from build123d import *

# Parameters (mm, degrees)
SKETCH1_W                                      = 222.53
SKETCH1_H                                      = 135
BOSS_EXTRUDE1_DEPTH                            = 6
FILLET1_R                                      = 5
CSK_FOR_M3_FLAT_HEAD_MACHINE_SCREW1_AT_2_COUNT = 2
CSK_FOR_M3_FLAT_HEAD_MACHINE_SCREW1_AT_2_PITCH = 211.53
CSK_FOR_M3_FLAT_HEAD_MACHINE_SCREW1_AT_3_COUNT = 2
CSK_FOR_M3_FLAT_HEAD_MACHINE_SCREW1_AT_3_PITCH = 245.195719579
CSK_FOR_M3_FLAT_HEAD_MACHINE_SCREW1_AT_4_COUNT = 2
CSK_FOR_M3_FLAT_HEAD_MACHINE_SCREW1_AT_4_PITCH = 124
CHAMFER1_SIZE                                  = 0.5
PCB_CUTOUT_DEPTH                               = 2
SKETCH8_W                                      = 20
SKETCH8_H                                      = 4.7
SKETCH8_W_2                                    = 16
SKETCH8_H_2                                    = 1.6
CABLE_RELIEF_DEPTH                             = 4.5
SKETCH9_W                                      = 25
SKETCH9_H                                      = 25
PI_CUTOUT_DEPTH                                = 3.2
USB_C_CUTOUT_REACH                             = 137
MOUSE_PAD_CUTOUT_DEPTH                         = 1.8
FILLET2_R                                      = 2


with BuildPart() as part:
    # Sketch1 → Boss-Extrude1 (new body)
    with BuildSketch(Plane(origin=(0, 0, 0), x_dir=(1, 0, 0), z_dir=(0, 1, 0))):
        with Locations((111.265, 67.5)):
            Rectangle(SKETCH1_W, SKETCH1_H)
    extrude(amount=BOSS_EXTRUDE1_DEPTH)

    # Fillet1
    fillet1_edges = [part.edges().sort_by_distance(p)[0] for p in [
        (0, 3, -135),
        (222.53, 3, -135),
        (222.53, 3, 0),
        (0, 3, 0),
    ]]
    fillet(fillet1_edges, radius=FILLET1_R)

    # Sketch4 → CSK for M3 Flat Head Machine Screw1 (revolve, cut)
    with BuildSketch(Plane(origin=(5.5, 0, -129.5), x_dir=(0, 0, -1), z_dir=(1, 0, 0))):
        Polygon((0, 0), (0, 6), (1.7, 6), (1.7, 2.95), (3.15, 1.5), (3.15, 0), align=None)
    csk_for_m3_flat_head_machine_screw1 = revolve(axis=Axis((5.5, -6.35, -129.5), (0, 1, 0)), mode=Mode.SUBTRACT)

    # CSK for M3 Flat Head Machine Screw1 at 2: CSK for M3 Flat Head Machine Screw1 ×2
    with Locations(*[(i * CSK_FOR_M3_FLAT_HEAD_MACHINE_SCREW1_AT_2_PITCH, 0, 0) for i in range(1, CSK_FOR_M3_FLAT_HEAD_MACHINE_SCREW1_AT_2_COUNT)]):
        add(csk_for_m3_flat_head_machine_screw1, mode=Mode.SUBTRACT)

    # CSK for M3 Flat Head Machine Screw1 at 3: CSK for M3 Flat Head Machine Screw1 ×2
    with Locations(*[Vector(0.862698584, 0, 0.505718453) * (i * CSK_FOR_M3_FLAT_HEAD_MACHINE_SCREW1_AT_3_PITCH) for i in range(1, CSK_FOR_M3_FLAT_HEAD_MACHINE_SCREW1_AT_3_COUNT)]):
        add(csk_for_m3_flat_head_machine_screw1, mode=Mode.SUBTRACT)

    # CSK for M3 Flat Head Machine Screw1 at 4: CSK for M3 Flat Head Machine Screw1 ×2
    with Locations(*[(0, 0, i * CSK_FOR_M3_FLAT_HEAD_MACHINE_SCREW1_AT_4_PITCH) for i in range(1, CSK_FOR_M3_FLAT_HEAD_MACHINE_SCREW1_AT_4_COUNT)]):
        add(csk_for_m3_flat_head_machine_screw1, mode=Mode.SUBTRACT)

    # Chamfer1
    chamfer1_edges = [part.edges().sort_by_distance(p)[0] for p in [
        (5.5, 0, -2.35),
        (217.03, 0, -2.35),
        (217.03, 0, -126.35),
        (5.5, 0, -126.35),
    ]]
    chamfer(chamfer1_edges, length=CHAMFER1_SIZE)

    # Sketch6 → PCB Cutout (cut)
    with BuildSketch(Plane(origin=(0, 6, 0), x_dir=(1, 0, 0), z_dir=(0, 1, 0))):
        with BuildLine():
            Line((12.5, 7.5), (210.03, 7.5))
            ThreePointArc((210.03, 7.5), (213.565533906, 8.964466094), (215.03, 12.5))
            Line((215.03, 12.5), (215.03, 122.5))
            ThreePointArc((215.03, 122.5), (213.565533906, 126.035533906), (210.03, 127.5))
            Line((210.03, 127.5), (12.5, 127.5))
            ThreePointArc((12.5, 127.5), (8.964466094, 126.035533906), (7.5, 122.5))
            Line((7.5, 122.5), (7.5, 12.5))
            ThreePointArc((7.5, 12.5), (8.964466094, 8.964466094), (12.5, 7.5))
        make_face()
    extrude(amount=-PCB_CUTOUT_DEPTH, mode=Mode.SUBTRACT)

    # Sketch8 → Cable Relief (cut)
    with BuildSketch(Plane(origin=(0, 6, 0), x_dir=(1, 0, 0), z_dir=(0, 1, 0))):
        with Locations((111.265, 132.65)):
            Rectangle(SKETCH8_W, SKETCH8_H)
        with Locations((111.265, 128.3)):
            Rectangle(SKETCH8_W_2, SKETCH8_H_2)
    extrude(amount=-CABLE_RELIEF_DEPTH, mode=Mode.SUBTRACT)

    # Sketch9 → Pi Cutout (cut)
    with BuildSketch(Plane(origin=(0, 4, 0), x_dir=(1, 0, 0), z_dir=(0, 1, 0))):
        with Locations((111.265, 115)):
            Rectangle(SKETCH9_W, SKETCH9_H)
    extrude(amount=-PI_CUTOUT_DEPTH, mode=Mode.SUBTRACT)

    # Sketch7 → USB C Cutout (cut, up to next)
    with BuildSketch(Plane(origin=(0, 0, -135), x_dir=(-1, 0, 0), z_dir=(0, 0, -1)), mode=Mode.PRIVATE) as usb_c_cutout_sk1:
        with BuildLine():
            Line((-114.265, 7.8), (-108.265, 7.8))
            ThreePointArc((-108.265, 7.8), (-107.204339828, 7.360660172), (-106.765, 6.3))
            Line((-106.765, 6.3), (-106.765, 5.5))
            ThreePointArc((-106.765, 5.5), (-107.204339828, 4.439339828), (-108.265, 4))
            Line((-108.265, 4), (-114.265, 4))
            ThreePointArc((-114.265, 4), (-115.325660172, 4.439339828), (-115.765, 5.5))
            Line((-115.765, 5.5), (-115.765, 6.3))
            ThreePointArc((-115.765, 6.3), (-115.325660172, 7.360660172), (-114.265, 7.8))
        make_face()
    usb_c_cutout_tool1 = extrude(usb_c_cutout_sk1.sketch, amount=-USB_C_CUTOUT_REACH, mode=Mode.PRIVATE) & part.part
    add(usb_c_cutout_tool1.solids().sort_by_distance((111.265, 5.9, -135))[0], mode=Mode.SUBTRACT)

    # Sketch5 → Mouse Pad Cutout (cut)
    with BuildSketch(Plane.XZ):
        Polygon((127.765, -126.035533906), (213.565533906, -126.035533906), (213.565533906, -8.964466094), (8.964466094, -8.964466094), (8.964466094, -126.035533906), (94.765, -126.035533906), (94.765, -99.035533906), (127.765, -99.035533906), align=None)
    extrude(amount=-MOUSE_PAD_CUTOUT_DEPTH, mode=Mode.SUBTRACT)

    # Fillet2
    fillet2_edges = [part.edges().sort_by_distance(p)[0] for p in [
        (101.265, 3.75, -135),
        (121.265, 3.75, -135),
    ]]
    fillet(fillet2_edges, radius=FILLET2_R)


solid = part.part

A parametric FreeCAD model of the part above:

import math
import FreeCAD as App
import Part
import Sketcher

V = App.Vector
Q = App.Units.Quantity


def edges_at(feature, points):
    """Names of the edges that pass closest to the given points."""
    edges = feature.Shape.Edges
    near = lambda p: min(range(len(edges)), key=lambda i: edges[i].distToShape(Part.Vertex(*p))[0])
    return sorted({f"Edge{near(p) + 1}" for p in points})

doc = App.newDocument("Part")
body = doc.addObject("PartDesign::Body", "Body")

sketch1 = doc.addObject("Sketcher::SketchObject", "Sketch")
body.addObject(sketch1)
sketch1.AttachmentSupport = (doc.XZ_Plane, [""])
sketch1.MapMode = "FlatFace"
sketch1.addGeometry([
    Part.LineSegment(V(0, -135, 0), V(0, 0, 0)),
    Part.LineSegment(V(0, 0, 0), V(222.53, 0, 0)),
    Part.LineSegment(V(222.53, 0, 0), V(222.53, -135, 0)),
    Part.LineSegment(V(222.53, -135, 0), V(0, -135, 0)),
], False)
sketch1.addConstraint([
    Sketcher.Constraint("Coincident", 0, 2, 1, 1),
    Sketcher.Constraint("Coincident", 1, 2, 2, 1),
    Sketcher.Constraint("Coincident", 2, 2, 3, 1),
    Sketcher.Constraint("Coincident", 3, 2, 0, 1),
    Sketcher.Constraint("Vertical", 0),
    Sketcher.Constraint("Horizontal", 1),
    Sketcher.Constraint("Vertical", 2),
    Sketcher.Constraint("Horizontal", 3),
    Sketcher.Constraint("Coincident", 0, 2, -1, 1),
    Sketcher.Constraint("DistanceY", 0, 1, 0, 2, 135.0),
    Sketcher.Constraint("DistanceX", 1, 1, 1, 2, 222.53),
])
pad1 = doc.addObject("PartDesign::Pad", "Pad")
body.addObject(pad1)
pad1.Profile = sketch1
pad1.Length = 6
pad1.Reversed = True
doc.recompute()

fillet = doc.addObject("PartDesign::Fillet", "Fillet")
body.addObject(fillet)
fillet.Base = (pad1, edges_at(pad1, [
    (0, 3, -135),
    (222.53, 3, -135),
    (222.53, 3, 0),
    (0, 3, 0),
]))
fillet.Radius = 5

sketch2 = doc.addObject("Sketcher::SketchObject", "Sketch001")
body.addObject(sketch2)
sketch2.AttachmentSupport = (doc.YZ_Plane, [""])
sketch2.MapMode = "FlatFace"
sketch2.AttachmentOffset = App.Placement(V(0, 0, 5.5), App.Rotation())
sketch2.addGeometry([
    Part.LineSegment(V(6, -129.5, 0), V(0, -129.5, 0)),
    Part.LineSegment(V(0, -129.5, 0), V(0, -132.65, 0)),
    Part.LineSegment(V(0, -132.65, 0), V(1.5, -132.65, 0)),
    Part.LineSegment(V(1.5, -132.65, 0), V(2.95, -131.2, 0)),
    Part.LineSegment(V(2.95, -131.2, 0), V(6, -131.2, 0)),
    Part.LineSegment(V(6, -131.2, 0), V(6, -129.5, 0)),
], False)
sketch2.addGeometry(Part.LineSegment(V(0, -129.5, 0), V(6, -129.5, 0)), True)
sketch2.addConstraint([
    Sketcher.Constraint("Coincident", 0, 2, 1, 1),
    Sketcher.Constraint("Coincident", 1, 2, 2, 1),
    Sketcher.Constraint("Coincident", 2, 2, 3, 1),
    Sketcher.Constraint("Coincident", 3, 2, 4, 1),
    Sketcher.Constraint("Coincident", 4, 2, 5, 1),
    Sketcher.Constraint("Coincident", 5, 2, 0, 1),
    Sketcher.Constraint("Horizontal", 0),
    Sketcher.Constraint("Vertical", 1),
    Sketcher.Constraint("Horizontal", 2),
    Sketcher.Constraint("Horizontal", 4),
    Sketcher.Constraint("Vertical", 5),
    Sketcher.Constraint("Horizontal", 6),
    Sketcher.Constraint("Coincident", 6, 1, 0, 2),
    Sketcher.Constraint("PointOnObject", 0, 2, -2),
    Sketcher.Constraint("Vertical", 4, 2, 6, 2),
    Sketcher.Constraint("DistanceX", 0, 2, 0, 1, 6.0),
    Sketcher.Constraint("Angle", 3, Q("45 deg")),
    Sketcher.Constraint("DistanceX", 2, 1, 2, 2, 1.5),
    Sketcher.Constraint("DistanceY", 5, 1, 5, 2, 1.7),
    Sketcher.Constraint("DistanceX", 4, 1, 4, 2, 3.05),
    Sketcher.Constraint("DistanceY", 0, 2, -1, 1, 129.5),
])
groove = doc.addObject("PartDesign::Groove", "Groove")
body.addObject(groove)
groove.Profile = sketch2
groove.ReferenceAxis = (sketch2, ["Axis0"])
groove.Angle = 360
doc.recompute()

linearpattern = doc.addObject("PartDesign::LinearPattern", "LinearPattern")
body.addObject(linearpattern)
linearpattern.Originals = [groove]
linearpattern.Direction = (doc.X_Axis, [""])
linearpattern.Mode = "offset"
linearpattern.Offset = 211.53
linearpattern.Occurrences = 2
body.Tip = linearpattern
doc.recompute()

datumline = doc.addObject("PartDesign::Line", "DatumLine")
body.addObject(datumline)
datumline.Placement = App.Placement(V(0, 0, 0), App.Rotation(V(0, 0, 1), V(0.862698584, 0, 0.505718453)))
linearpattern2 = doc.addObject("PartDesign::LinearPattern", "LinearPattern001")
body.addObject(linearpattern2)
linearpattern2.Originals = [groove]
linearpattern2.Direction = (datumline, [""])
linearpattern2.Mode = "offset"
linearpattern2.Offset = 245.19572
linearpattern2.Occurrences = 2
body.Tip = linearpattern2
doc.recompute()

linearpattern3 = doc.addObject("PartDesign::LinearPattern", "LinearPattern002")
body.addObject(linearpattern3)
linearpattern3.Originals = [groove]
linearpattern3.Direction = (doc.Z_Axis, [""])
linearpattern3.Mode = "offset"
linearpattern3.Offset = 124
linearpattern3.Occurrences = 2
body.Tip = linearpattern3
doc.recompute()

chamfer = doc.addObject("PartDesign::Chamfer", "Chamfer")
body.addObject(chamfer)
chamfer.Base = (linearpattern3, edges_at(linearpattern3, [
    (5.5, 0, -2.35),
    (217.03, 0, -2.35),
    (217.03, 0, -126.35),
    (5.5, 0, -126.35),
]))
chamfer.Size = 0.5

sketch3 = doc.addObject("Sketcher::SketchObject", "Sketch002")
body.addObject(sketch3)
sketch3.AttachmentSupport = (doc.XZ_Plane, [""])
sketch3.MapMode = "FlatFace"
sketch3.AttachmentOffset = App.Placement(V(0, 0, -6), App.Rotation())
sketch3.addGeometry([
    Part.LineSegment(V(12.5, -7.5, 0), V(210.03, -7.5, 0)),
    Part.ArcOfCircle(Part.Circle(V(210.03, -12.5, 0), V(0, 0, 1), 5), math.radians(0), math.radians(90)),
    Part.LineSegment(V(215.03, -12.5, 0), V(215.03, -122.5, 0)),
    Part.ArcOfCircle(Part.Circle(V(210.03, -122.5, 0), V(0, 0, 1), 5), math.radians(-90), math.radians(0)),
    Part.LineSegment(V(210.03, -127.5, 0), V(12.5, -127.5, 0)),
    Part.ArcOfCircle(Part.Circle(V(12.5, -122.5, 0), V(0, 0, 1), 5), math.radians(180), math.radians(270)),
    Part.LineSegment(V(7.5, -122.5, 0), V(7.5, -12.5, 0)),
    Part.ArcOfCircle(Part.Circle(V(12.5, -12.5, 0), V(0, 0, 1), 5), math.radians(90), math.radians(180)),
], False)
sketch3.addConstraint([
    Sketcher.Constraint("Tangent", 0, 2, 1, 2),
    Sketcher.Constraint("Tangent", 1, 1, 2, 1),
    Sketcher.Constraint("Tangent", 2, 2, 3, 2),
    Sketcher.Constraint("Tangent", 3, 1, 4, 1),
    Sketcher.Constraint("Tangent", 4, 2, 5, 2),
    Sketcher.Constraint("Tangent", 5, 1, 6, 1),
    Sketcher.Constraint("Tangent", 6, 2, 7, 2),
    Sketcher.Constraint("Tangent", 7, 1, 0, 1),
    Sketcher.Constraint("Horizontal", 0),
    Sketcher.Constraint("Vertical", 2),
    Sketcher.Constraint("Horizontal", 4),
    Sketcher.Constraint("Vertical", 6),
    Sketcher.Constraint("Equal", 1, 3),
    Sketcher.Constraint("Equal", 3, 5),
    Sketcher.Constraint("Equal", 5, 7),
    Sketcher.Constraint("Radius", 1, 5.0),
    Sketcher.Constraint("DistanceY", 2, 2, 2, 1, 110.0),
    Sketcher.Constraint("DistanceX", 0, 1, 0, 2, 197.53),
    Sketcher.Constraint("DistanceY", 1, 3, -1, 1, 12.5),
    Sketcher.Constraint("DistanceX", -1, 1, 5, 3, 12.5),
])
pocket1 = doc.addObject("PartDesign::Pocket", "Pocket")
body.addObject(pocket1)
pocket1.Profile = sketch3
pocket1.Length = 2
pocket1.Reversed = True

sketch4 = doc.addObject("Sketcher::SketchObject", "Sketch003")
body.addObject(sketch4)
sketch4.AttachmentSupport = (doc.XZ_Plane, [""])
sketch4.MapMode = "FlatFace"
sketch4.AttachmentOffset = App.Placement(V(0, 0, -6), App.Rotation())
sketch4.addGeometry([
    Part.LineSegment(V(101.265, -135, 0), V(101.265, -130.3, 0)),
    Part.LineSegment(V(101.265, -130.3, 0), V(121.265, -130.3, 0)),
    Part.LineSegment(V(121.265, -130.3, 0), V(121.265, -135, 0)),
    Part.LineSegment(V(121.265, -135, 0), V(101.265, -135, 0)),
    Part.LineSegment(V(103.265, -129.1, 0), V(103.265, -127.5, 0)),
    Part.LineSegment(V(103.265, -127.5, 0), V(119.265, -127.5, 0)),
    Part.LineSegment(V(119.265, -127.5, 0), V(119.265, -129.1, 0)),
    Part.LineSegment(V(119.265, -129.1, 0), V(103.265, -129.1, 0)),
], False)
sketch4.addConstraint([
    Sketcher.Constraint("Coincident", 0, 2, 1, 1),
    Sketcher.Constraint("Coincident", 1, 2, 2, 1),
    Sketcher.Constraint("Coincident", 2, 2, 3, 1),
    Sketcher.Constraint("Coincident", 3, 2, 0, 1),
    Sketcher.Constraint("Coincident", 4, 2, 5, 1),
    Sketcher.Constraint("Coincident", 5, 2, 6, 1),
    Sketcher.Constraint("Coincident", 6, 2, 7, 1),
    Sketcher.Constraint("Coincident", 7, 2, 4, 1),
    Sketcher.Constraint("Vertical", 0),
    Sketcher.Constraint("Horizontal", 1),
    Sketcher.Constraint("Vertical", 2),
    Sketcher.Constraint("Horizontal", 3),
    Sketcher.Constraint("Vertical", 4),
    Sketcher.Constraint("Horizontal", 5),
    Sketcher.Constraint("Vertical", 6),
    Sketcher.Constraint("Horizontal", 7),
    Sketcher.Constraint("DistanceX", 1, 1, 1, 2, 20.0),
    Sketcher.Constraint("DistanceX", 5, 1, 5, 2, 16.0),
    Sketcher.Constraint("DistanceY", 0, 1, 0, 2, 4.7),
    Sketcher.Constraint("DistanceY", 4, 1, 4, 2, 1.6),
    Sketcher.Constraint("DistanceY", 2, 2, -1, 1, 135.0),
    Sketcher.Constraint("DistanceX", 0, 2, 4, 2, 2.0),
    Sketcher.Constraint("DistanceY", 4, 2, -1, 1, 127.5),
    Sketcher.Constraint("DistanceX", -1, 1, 0, 2, 101.265),
])
pocket2 = doc.addObject("PartDesign::Pocket", "Pocket001")
body.addObject(pocket2)
pocket2.Profile = sketch4
pocket2.Length = 4.5
pocket2.Reversed = True

sketch5 = doc.addObject("Sketcher::SketchObject", "Sketch004")
body.addObject(sketch5)
sketch5.AttachmentSupport = (doc.XZ_Plane, [""])
sketch5.MapMode = "FlatFace"
sketch5.AttachmentOffset = App.Placement(V(0, 0, -4), App.Rotation())
sketch5.addGeometry([
    Part.LineSegment(V(98.765, -127.5, 0), V(98.765, -102.5, 0)),
    Part.LineSegment(V(98.765, -102.5, 0), V(123.765, -102.5, 0)),
    Part.LineSegment(V(123.765, -102.5, 0), V(123.765, -127.5, 0)),
    Part.LineSegment(V(123.765, -127.5, 0), V(98.765, -127.5, 0)),
], False)
sketch5.addConstraint([
    Sketcher.Constraint("Coincident", 0, 2, 1, 1),
    Sketcher.Constraint("Coincident", 1, 2, 2, 1),
    Sketcher.Constraint("Coincident", 2, 2, 3, 1),
    Sketcher.Constraint("Coincident", 3, 2, 0, 1),
    Sketcher.Constraint("Vertical", 0),
    Sketcher.Constraint("Horizontal", 1),
    Sketcher.Constraint("Vertical", 2),
    Sketcher.Constraint("Horizontal", 3),
    Sketcher.Constraint("Equal", 3, 0),
    Sketcher.Constraint("DistanceX", 1, 1, 1, 2, 25.0),
    Sketcher.Constraint("DistanceY", 0, 2, -1, 1, 102.5),
    Sketcher.Constraint("DistanceX", -1, 1, 0, 2, 98.765),
])
pocket3 = doc.addObject("PartDesign::Pocket", "Pocket002")
body.addObject(pocket3)
pocket3.Profile = sketch5
pocket3.Length = 3.2
pocket3.Reversed = True

sketch6 = doc.addObject("Sketcher::SketchObject", "Sketch005")
body.addObject(sketch6)
sketch6.AttachmentSupport = (doc.XY_Plane, [""])
sketch6.MapMode = "FlatFace"
sketch6.AttachmentOffset = App.Placement(V(0, 0, -135), App.Rotation())
sketch6.addGeometry([
    Part.LineSegment(V(108.265, 7.8, 0), V(114.265, 7.8, 0)),
    Part.ArcOfCircle(Part.Circle(V(114.265, 6.3, 0), V(0, 0, 1), 1.5), math.radians(0), math.radians(90)),
    Part.LineSegment(V(115.765, 6.3, 0), V(115.765, 5.5, 0)),
    Part.ArcOfCircle(Part.Circle(V(114.265, 5.5, 0), V(0, 0, 1), 1.5), math.radians(-90), math.radians(0)),
    Part.LineSegment(V(114.265, 4, 0), V(108.265, 4, 0)),
    Part.ArcOfCircle(Part.Circle(V(108.265, 5.5, 0), V(0, 0, 1), 1.5), math.radians(180), math.radians(270)),
    Part.LineSegment(V(106.765, 5.5, 0), V(106.765, 6.3, 0)),
    Part.ArcOfCircle(Part.Circle(V(108.265, 6.3, 0), V(0, 0, 1), 1.5), math.radians(90), math.radians(180)),
], False)
sketch6.addConstraint([
    Sketcher.Constraint("Tangent", 0, 2, 1, 2),
    Sketcher.Constraint("Tangent", 1, 1, 2, 1),
    Sketcher.Constraint("Tangent", 2, 2, 3, 2),
    Sketcher.Constraint("Tangent", 3, 1, 4, 1),
    Sketcher.Constraint("Tangent", 4, 2, 5, 2),
    Sketcher.Constraint("Tangent", 5, 1, 6, 1),
    Sketcher.Constraint("Tangent", 6, 2, 7, 2),
    Sketcher.Constraint("Tangent", 7, 1, 0, 1),
    Sketcher.Constraint("Horizontal", 0),
    Sketcher.Constraint("Vertical", 2),
    Sketcher.Constraint("Horizontal", 4),
    Sketcher.Constraint("Vertical", 6),
    Sketcher.Constraint("Equal", 1, 3),
    Sketcher.Constraint("Equal", 3, 5),
    Sketcher.Constraint("Equal", 5, 7),
    Sketcher.Constraint("Radius", 1, 1.5),
    Sketcher.Constraint("DistanceX", 0, 1, 0, 2, 6.0),
    Sketcher.Constraint("DistanceY", 2, 2, 2, 1, 0.8),
    Sketcher.Constraint("DistanceY", -1, 1, 3, 1, 4.0),
    Sketcher.Constraint("DistanceX", -1, 1, 1, 3, 114.265),
])
pocket4 = doc.addObject("PartDesign::Pocket", "Pocket003")
body.addObject(pocket4)
pocket4.Profile = sketch6
pocket4.Length = 5.9
pocket4.Reversed = True

sketch7 = doc.addObject("Sketcher::SketchObject", "Sketch006")
body.addObject(sketch7)
sketch7.AttachmentSupport = (doc.XZ_Plane, [""])
sketch7.MapMode = "FlatFace"
sketch7.addGeometry([
    Part.LineSegment(V(127.765, -126.035534, 0), V(213.565534, -126.035534, 0)),
    Part.LineSegment(V(213.565534, -126.035534, 0), V(213.565534, -8.964466, 0)),
    Part.LineSegment(V(213.565534, -8.964466, 0), V(8.964466, -8.964466, 0)),
    Part.LineSegment(V(8.964466, -8.964466, 0), V(8.964466, -126.035534, 0)),
    Part.LineSegment(V(8.964466, -126.035534, 0), V(94.765, -126.035534, 0)),
    Part.LineSegment(V(94.765, -126.035534, 0), V(94.765, -99.035534, 0)),
    Part.LineSegment(V(94.765, -99.035534, 0), V(127.765, -99.035534, 0)),
    Part.LineSegment(V(127.765, -99.035534, 0), V(127.765, -126.035534, 0)),
], False)
sketch7.addConstraint([
    Sketcher.Constraint("Coincident", 0, 2, 1, 1),
    Sketcher.Constraint("Coincident", 1, 2, 2, 1),
    Sketcher.Constraint("Coincident", 2, 2, 3, 1),
    Sketcher.Constraint("Coincident", 3, 2, 4, 1),
    Sketcher.Constraint("Coincident", 4, 2, 5, 1),
    Sketcher.Constraint("Coincident", 5, 2, 6, 1),
    Sketcher.Constraint("Coincident", 6, 2, 7, 1),
    Sketcher.Constraint("Coincident", 7, 2, 0, 1),
    Sketcher.Constraint("Horizontal", 0),
    Sketcher.Constraint("Vertical", 1),
    Sketcher.Constraint("Horizontal", 2),
    Sketcher.Constraint("Vertical", 3),
    Sketcher.Constraint("Horizontal", 4),
    Sketcher.Constraint("Vertical", 5),
    Sketcher.Constraint("Horizontal", 6),
    Sketcher.Constraint("Vertical", 7),
    Sketcher.Constraint("Horizontal", 0, 2, 3, 2),
    Sketcher.Constraint("Equal", 0, 4),
    Sketcher.Constraint("DistanceX", 6, 1, 6, 2, 33.0),
    Sketcher.Constraint("DistanceY", 5, 1, 5, 2, 27.0),
    Sketcher.Constraint("DistanceX", -1, 1, 4, 2, 94.765),
    Sketcher.Constraint("DistanceX", 0, 1, 0, 2, 85.800534),
    Sketcher.Constraint("DistanceY", 1, 1, 1, 2, 117.071068),
    Sketcher.Constraint("DistanceY", 0, 2, -1, 1, 126.035534),
])
pocket5 = doc.addObject("PartDesign::Pocket", "Pocket004")
body.addObject(pocket5)
pocket5.Profile = sketch7
pocket5.Length = 1.8
doc.recompute()

fillet2 = doc.addObject("PartDesign::Fillet", "Fillet001")
body.addObject(fillet2)
fillet2.Base = (pocket5, edges_at(pocket5, [(101.265, 3.75, -135), (121.265, 3.75, -135)]))
fillet2.Radius = 2

doc.recompute()
